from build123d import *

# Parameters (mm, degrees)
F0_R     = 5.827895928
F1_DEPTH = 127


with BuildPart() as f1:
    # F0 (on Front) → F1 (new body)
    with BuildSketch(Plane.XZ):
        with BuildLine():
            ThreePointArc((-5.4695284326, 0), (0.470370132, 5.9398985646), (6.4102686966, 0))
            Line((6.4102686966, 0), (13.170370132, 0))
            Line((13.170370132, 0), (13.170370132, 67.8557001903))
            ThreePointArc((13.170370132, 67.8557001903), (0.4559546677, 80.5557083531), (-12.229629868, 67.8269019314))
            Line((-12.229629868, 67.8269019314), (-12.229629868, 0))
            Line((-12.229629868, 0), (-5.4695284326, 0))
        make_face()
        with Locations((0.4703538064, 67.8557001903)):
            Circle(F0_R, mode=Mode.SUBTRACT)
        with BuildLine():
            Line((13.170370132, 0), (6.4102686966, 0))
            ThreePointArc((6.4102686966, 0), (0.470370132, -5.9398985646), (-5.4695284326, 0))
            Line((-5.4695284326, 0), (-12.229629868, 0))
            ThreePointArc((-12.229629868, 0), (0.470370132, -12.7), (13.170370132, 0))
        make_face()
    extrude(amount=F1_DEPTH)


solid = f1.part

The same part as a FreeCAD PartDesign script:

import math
import FreeCAD as App
import Part
import Sketcher

V = App.Vector
Q = App.Units.Quantity

doc = App.newDocument("Part")
params = doc.addObject("Spreadsheet::Sheet", "Params")
for row, (alias, value) in enumerate([
    ("sketch1_radius", "0.5 in"),
    ("pad1_length", "5 in"),
], start=1):
    params.set(f"A{row}", alias)
    params.set(f"B{row}", "=" + value)
    params.setAlias(f"B{row}", alias)

body = doc.addObject("PartDesign::Body", "Body")

# Sketch on XZ plane
sketch1 = body.newObject("Sketcher::SketchObject", "Sketch")
sketch1.AttachmentSupport = (doc.getObject("XZ_Plane"), [""])
sketch1.MapMode = "FlatFace"
sketch1.addGeometry([
    Part.LineSegment(V(-12, 68, 0), V(-12, 0, 0)),  # 0
    Part.ArcOfCircle(Part.Circle(V(0, 0, 0), V(0, 0, 1), 13), math.radians(180), math.radians(360)),  # 1
    Part.LineSegment(V(13, 0, 0), V(13, 68, 0)),  # 2
    Part.ArcOfCircle(Part.Circle(V(0, 68, 0), V(0, 0, 1), 13), math.radians(0), math.radians(180)),  # 3
    Part.Circle(V(0, 0, 0), V(0, 0, 1), 6),  # 4
    Part.Circle(V(0, 68, 0), V(0, 0, 1), 6),  # 5
], False)
sketch1.addConstraint([
    Sketcher.Constraint("Tangent", 0, 2, 1, 1),
    Sketcher.Constraint("Tangent", 1, 2, 2, 1),
    Sketcher.Constraint("Tangent", 2, 2, 3, 1),
    Sketcher.Constraint("Coincident", 3, 2, 0, 1),
    Sketcher.Constraint("Vertical", 0),
    Sketcher.Constraint("Vertical", 2),
    Sketcher.Constraint("Coincident", 4, 3, 1, 3),
    Sketcher.Constraint("Coincident", 5, 3, 3, 3),
    Sketcher.Constraint("PointOnObject", 1, 3, -1),
    Sketcher.Constraint("Radius", 1, Q("0.5 in")),
    Sketcher.Constraint("Diameter", 5, Q("11.655792 mm")),
    Sketcher.Constraint("Diameter", 4, Q("11.879797 mm")),
    Sketcher.Constraint("DistanceY", 0, 2, 0, 1, Q("67.826902 mm")),
    Sketcher.Constraint("DistanceY", 2, 1, 2, 2, Q("67.8557 mm")),
    Sketcher.Constraint("DistanceX", -1, 1, 1, 3, Q("0.47037 mm")),
])
sketch1.setExpression("Constraints[9]", "Params.sketch1_radius")
pad1 = body.newObject("PartDesign::Pad", "Pad")
pad1.Profile = sketch1
pad1.setExpression("Length", "Params.pad1_length")

doc.recompute()
